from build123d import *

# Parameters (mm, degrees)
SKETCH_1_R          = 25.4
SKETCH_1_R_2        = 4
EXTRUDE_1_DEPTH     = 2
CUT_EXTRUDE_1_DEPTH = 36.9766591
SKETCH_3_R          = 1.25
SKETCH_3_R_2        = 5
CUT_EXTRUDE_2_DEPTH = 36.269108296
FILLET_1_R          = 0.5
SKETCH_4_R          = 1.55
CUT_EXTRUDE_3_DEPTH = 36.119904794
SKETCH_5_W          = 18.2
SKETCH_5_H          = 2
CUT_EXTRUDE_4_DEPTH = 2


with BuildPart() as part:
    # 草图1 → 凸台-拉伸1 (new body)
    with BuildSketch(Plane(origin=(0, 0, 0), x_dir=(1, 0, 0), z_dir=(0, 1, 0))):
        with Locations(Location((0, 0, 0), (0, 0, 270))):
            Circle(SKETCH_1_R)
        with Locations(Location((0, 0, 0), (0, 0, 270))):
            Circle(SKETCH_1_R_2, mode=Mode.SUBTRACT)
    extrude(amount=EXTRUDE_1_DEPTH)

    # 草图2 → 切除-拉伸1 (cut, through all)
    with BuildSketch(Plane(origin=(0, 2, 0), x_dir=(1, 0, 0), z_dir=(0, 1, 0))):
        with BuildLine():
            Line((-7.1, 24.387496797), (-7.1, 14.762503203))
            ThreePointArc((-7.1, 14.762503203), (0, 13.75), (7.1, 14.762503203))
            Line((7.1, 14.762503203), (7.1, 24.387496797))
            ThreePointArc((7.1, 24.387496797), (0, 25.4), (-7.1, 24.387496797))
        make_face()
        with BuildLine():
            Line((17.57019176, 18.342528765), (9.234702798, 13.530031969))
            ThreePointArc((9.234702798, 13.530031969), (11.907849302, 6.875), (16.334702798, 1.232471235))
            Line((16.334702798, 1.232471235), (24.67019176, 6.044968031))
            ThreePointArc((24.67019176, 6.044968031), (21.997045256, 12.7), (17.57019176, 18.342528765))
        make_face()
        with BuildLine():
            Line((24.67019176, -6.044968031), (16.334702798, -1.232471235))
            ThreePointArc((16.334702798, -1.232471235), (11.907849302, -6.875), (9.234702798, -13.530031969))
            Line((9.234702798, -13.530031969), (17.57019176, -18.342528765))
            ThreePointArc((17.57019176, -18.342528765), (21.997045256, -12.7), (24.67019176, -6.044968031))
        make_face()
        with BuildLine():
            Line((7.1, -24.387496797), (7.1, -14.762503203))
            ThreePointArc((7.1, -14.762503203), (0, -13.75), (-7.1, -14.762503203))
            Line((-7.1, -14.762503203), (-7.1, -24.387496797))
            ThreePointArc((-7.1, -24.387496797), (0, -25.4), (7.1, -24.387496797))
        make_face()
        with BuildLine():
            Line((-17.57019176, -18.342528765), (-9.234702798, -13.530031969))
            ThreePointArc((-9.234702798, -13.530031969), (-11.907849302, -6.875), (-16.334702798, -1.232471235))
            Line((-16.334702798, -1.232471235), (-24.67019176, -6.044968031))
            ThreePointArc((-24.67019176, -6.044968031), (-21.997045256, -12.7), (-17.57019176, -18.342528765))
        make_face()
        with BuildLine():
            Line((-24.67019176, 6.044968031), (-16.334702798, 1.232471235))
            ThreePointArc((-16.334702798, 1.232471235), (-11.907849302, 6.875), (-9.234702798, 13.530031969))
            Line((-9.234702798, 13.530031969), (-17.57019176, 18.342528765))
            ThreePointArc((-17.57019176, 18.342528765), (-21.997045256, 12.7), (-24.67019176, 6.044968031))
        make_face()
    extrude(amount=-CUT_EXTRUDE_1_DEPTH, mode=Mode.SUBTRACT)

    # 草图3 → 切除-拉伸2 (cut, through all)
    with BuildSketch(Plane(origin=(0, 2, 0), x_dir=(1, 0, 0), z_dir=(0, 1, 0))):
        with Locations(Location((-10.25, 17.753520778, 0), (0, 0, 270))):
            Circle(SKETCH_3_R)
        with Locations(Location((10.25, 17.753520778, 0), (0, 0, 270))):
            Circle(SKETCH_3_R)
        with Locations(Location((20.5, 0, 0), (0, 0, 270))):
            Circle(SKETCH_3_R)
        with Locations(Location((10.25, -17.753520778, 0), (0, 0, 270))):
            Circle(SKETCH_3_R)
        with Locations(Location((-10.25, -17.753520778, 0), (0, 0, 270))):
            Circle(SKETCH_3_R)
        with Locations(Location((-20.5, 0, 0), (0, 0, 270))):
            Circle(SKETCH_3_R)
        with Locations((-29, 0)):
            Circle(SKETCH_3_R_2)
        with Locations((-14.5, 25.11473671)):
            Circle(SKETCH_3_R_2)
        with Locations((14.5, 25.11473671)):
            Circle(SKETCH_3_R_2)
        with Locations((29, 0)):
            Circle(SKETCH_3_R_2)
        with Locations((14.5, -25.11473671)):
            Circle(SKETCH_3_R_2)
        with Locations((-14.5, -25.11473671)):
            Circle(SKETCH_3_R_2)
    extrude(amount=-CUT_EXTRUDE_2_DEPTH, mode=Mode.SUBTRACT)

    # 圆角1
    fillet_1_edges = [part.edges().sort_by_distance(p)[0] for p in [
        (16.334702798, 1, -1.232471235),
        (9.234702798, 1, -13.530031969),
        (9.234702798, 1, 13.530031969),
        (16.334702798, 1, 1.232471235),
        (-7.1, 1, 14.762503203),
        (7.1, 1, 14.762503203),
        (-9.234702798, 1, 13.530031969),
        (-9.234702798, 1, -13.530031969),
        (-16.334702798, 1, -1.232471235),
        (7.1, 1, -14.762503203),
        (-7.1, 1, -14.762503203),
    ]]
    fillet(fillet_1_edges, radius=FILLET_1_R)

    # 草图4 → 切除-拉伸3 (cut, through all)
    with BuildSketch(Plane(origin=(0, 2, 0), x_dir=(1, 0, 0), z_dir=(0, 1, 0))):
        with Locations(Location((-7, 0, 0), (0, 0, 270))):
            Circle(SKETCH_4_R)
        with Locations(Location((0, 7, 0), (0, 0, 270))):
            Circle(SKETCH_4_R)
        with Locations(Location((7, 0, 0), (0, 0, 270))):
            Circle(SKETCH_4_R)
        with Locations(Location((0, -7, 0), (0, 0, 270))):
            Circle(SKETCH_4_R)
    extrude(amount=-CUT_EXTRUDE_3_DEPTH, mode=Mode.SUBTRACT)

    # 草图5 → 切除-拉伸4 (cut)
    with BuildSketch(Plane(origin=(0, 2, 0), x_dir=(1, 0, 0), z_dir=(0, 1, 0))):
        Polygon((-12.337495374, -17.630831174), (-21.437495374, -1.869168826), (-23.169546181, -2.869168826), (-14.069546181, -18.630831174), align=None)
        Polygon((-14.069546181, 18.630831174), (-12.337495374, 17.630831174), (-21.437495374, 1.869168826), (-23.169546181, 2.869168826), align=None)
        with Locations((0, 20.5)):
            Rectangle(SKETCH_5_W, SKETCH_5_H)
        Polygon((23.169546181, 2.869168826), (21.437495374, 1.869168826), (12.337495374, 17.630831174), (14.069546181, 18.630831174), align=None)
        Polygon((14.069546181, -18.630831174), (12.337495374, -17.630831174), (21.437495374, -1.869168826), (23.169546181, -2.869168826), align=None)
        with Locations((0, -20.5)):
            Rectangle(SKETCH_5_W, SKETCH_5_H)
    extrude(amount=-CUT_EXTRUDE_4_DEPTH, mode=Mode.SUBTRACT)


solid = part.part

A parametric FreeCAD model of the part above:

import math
import FreeCAD as App
import Part
import Sketcher
Q = App.Units.Quantity


def edges_at(feature, points):
    """Names of the edges that pass closest to the given points."""
    edges = feature.Shape.Edges
    near = lambda p: min(range(len(edges)), key=lambda i: edges[i].distToShape(Part.Vertex(*p))[0])
    return sorted({f"Edge{near(p) + 1}" for p in points})


def add_polygon(sketch, points):
    """Adds a closed chain of lines whose ends are joined by coincident constraints."""
    first, n = sketch.GeometryCount, len(points)
    for a, b in zip(points, points[1:] + points[:1]):
        sketch.addGeometry(Part.LineSegment(App.Vector(*a, 0), App.Vector(*b, 0)), False)
    for i in range(n):
        sketch.addConstraint(Sketcher.Constraint("Coincident", first + i, 2, first + (i + 1) % n, 1))

doc = App.newDocument("Part")
body = doc.addObject("PartDesign::Body", "Body")

# Sketch on XZ plane
sketch1 = body.newObject("Sketcher::SketchObject", "Sketch")
sketch1.AttachmentSupport = (doc.getObject("XZ_Plane"), [""])
sketch1.MapMode = "FlatFace"
sketch1.addGeometry([
    Part.Circle(App.Vector(0, 0, 0), App.Vector(0, 0, 1), 25.4),
    Part.Circle(App.Vector(0, 0, 0), App.Vector(0, 0, 1), 4),
], False)
sketch1.addConstraint([
    Sketcher.Constraint("Coincident", 0, 3, -1, 1),
    Sketcher.Constraint("Coincident", 1, 3, -1, 1),
    Sketcher.Constraint("Diameter", 1, Q("8 mm")),
    Sketcher.Constraint("Diameter", 0, Q("50.8 mm")),
])
pad1 = body.newObject("PartDesign::Pad", "Pad")
pad1.Profile = sketch1
pad1.Length = 2
pad1.Reversed = True

# Sketch on XZ plane
sketch2 = body.newObject("Sketcher::SketchObject", "Sketch001")
sketch2.AttachmentSupport = (doc.getObject("XZ_Plane"), [""])
sketch2.MapMode = "FlatFace"
sketch2.AttachmentOffset = App.Placement(App.Vector(0, 0, -2), App.Rotation())
sketch2.addGeometry([
    Part.LineSegment(App.Vector(-7.1, -24.387497, 0), App.Vector(-7.1, -14.762503, 0)),  # 0
    Part.ArcOfCircle(Part.Circle(App.Vector(0, -39.15, 0), App.Vector(0, 0, 1), 25.4), math.radians(73.76799), math.radians(106.23201)),  # 1
    Part.LineSegment(App.Vector(7.1, -14.762503, 0), App.Vector(7.1, -24.387497, 0)),  # 2
    Part.ArcOfCircle(Part.Circle(App.Vector(0, 0, 0), App.Vector(0, 0, 1), 25.4), math.radians(-106.23201), math.radians(-73.76799)),  # 3
    Part.LineSegment(App.Vector(17.570192, -18.342529, 0), App.Vector(9.234703, -13.530032, 0)),  # 4
    Part.ArcOfCircle(Part.Circle(App.Vector(33.904895, -19.575, 0), App.Vector(0, 0, 1), 25.4), math.radians(133.76799), math.radians(166.23201)),  # 5
    Part.LineSegment(App.Vector(16.334703, -1.232471, 0), App.Vector(24.670192, -6.044968, 0)),  # 6
    Part.ArcOfCircle(Part.Circle(App.Vector(0, 0, 0), App.Vector(0, 0, 1), 25.4), math.radians(-46.23201), math.radians(-13.76799)),  # 7
    Part.LineSegment(App.Vector(24.670192, 6.044968, 0), App.Vector(16.334703, 1.232471, 0)),  # 8
    Part.ArcOfCircle(Part.Circle(App.Vector(33.904895, 19.575, 0), App.Vector(0, 0, 1), 25.4), math.radians(-166.23201), math.radians(-133.76799)),  # 9
    Part.LineSegment(App.Vector(9.234703, 13.530032, 0), App.Vector(17.570192, 18.342529, 0)),  # 10
    Part.ArcOfCircle(Part.Circle(App.Vector(0, 0, 0), App.Vector(0, 0, 1), 25.4), math.radians(13.76799), math.radians(46.23201)),  # 11
    Part.LineSegment(App.Vector(7.1, 24.387497, 0), App.Vector(7.1, 14.762503, 0)),  # 12
    Part.ArcOfCircle(Part.Circle(App.Vector(0, 39.15, 0), App.Vector(0, 0, 1), 25.4), math.radians(-106.23201), math.radians(-73.76799)),  # 13
    Part.LineSegment(App.Vector(-7.1, 14.762503, 0), App.Vector(-7.1, 24.387497, 0)),  # 14
    Part.ArcOfCircle(Part.Circle(App.Vector(0, 0, 0), App.Vector(0, 0, 1), 25.4), math.radians(73.76799), math.radians(106.23201)),  # 15
    Part.LineSegment(App.Vector(-17.570192, 18.342529, 0), App.Vector(-9.234703, 13.530032, 0)),  # 16
    Part.ArcOfCircle(Part.Circle(App.Vector(-33.904895, 19.575, 0), App.Vector(0, 0, 1), 25.4), math.radians(-46.23201), math.radians(-13.76799)),  # 17
    Part.LineSegment(App.Vector(-16.334703, 1.232471, 0), App.Vector(-24.670192, 6.044968, 0)),  # 18
    Part.ArcOfCircle(Part.Circle(App.Vector(0, 0, 0), App.Vector(0, 0, 1), 25.4), math.radians(133.76799), math.radians(166.23201)),  # 19
    Part.LineSegment(App.Vector(-24.670192, -6.044968, 0), App.Vector(-16.334703, -1.232471, 0)),  # 20
    Part.ArcOfCircle(Part.Circle(App.Vector(-33.904895, -19.575, 0), App.Vector(0, 0, 1), 25.4), math.radians(13.76799), math.radians(46.23201)),  # 21
    Part.LineSegment(App.Vector(-9.234703, -13.530032, 0), App.Vector(-17.570192, -18.342529, 0)),  # 22
    Part.ArcOfCircle(Part.Circle(App.Vector(0, 0, 0), App.Vector(0, 0, 1), 25.4), math.radians(-166.23201), math.radians(-133.76799)),  # 23
], False)
sketch2.addConstraint([
    Sketcher.Constraint("Coincident", 0, 2, 1, 2),
    Sketcher.Constraint("Coincident", 1, 1, 2, 1),
    Sketcher.Constraint("Coincident", 2, 2, 3, 2),
    Sketcher.Constraint("Coincident", 3, 1, 0, 1),
    Sketcher.Constraint("Coincident", 4, 2, 5, 2),
    Sketcher.Constraint("Coincident", 5, 1, 6, 1),
    Sketcher.Constraint("Coincident", 6, 2, 7, 2),
    Sketcher.Constraint("Coincident", 7, 1, 4, 1),
    Sketcher.Constraint("Coincident", 8, 2, 9, 2),
    Sketcher.Constraint("Coincident", 9, 1, 10, 1),
    Sketcher.Constraint("Coincident", 10, 2, 11, 2),
    Sketcher.Constraint("Coincident", 11, 1, 8, 1),
    Sketcher.Constraint("Coincident", 12, 2, 13, 2),
    Sketcher.Constraint("Coincident", 13, 1, 14, 1),
    Sketcher.Constraint("Coincident", 14, 2, 15, 2),
    Sketcher.Constraint("Coincident", 15, 1, 12, 1),
    Sketcher.Constraint("Coincident", 16, 2, 17, 2),
    Sketcher.Constraint("Coincident", 17, 1, 18, 1),
    Sketcher.Constraint("Coincident", 18, 2, 19, 2),
    Sketcher.Constraint("Coincident", 19, 1, 16, 1),
    Sketcher.Constraint("Coincident", 20, 2, 21, 2),
    Sketcher.Constraint("Coincident", 21, 1, 22, 1),
    Sketcher.Constraint("Coincident", 22, 2, 23, 2),
    Sketcher.Constraint("Coincident", 23, 1, 20, 1),
    Sketcher.Constraint("Vertical", 0),
    Sketcher.Constraint("Vertical", 2),
    Sketcher.Constraint("Vertical", 12),
    Sketcher.Constraint("Vertical", 14),
    Sketcher.Constraint("Coincident", 3, 3, -1, 1),
    Sketcher.Constraint("Coincident", 7, 3, -1, 1),
    Sketcher.Constraint("Coincident", 11, 3, -1, 1),
    Sketcher.Constraint("Coincident", 15, 3, -1, 1),
    Sketcher.Constraint("Coincident", 19, 3, -1, 1),
    Sketcher.Constraint("Coincident", 23, 3, -1, 1),
    Sketcher.Constraint("Equal", 1, 3),
    Sketcher.Constraint("Equal", 3, 5),
    Sketcher.Constraint("Equal", 5, 7),
    Sketcher.Constraint("Equal", 7, 9),
    Sketcher.Constraint("Equal", 9, 11),
    Sketcher.Constraint("Equal", 11, 13),
    Sketcher.Constraint("Equal", 13, 15),
    Sketcher.Constraint("Equal", 15, 17),
    Sketcher.Constraint("Equal", 17, 19),
    Sketcher.Constraint("Equal", 19, 21),
    Sketcher.Constraint("Equal", 21, 23),
    Sketcher.Constraint("Symmetric", 1, 3, 13, 3, -1, 1),
    Sketcher.Constraint("Symmetric", 5, 3, 17, 3, -1, 1),
    Sketcher.Constraint("Symmetric", 9, 3, 21, 3, -1, 1),
    Sketcher.Constraint("Symmetric", 9, 3, 17, 3, -2),
    Sketcher.Constraint("Symmetric", 0, 2, 1, 1, -2),
    Sketcher.Constraint("Parallel", 4, 6),
    Sketcher.Constraint("Parallel", 8, 10),
    Sketcher.Constraint("Parallel", 6, 16),
    Sketcher.Constraint("Parallel", 16, 18),
    Sketcher.Constraint("Parallel", 10, 20),
    Sketcher.Constraint("Parallel", 20, 22),
    Sketcher.Constraint("Horizontal", 12, 2, 13, 1),
    Sketcher.Constraint("Horizontal", 9, 1, 16, 2),
    Sketcher.Constraint("Horizontal", 8, 2, 17, 1),
    Sketcher.Constraint("Horizontal", 11, 1, 18, 2),
    Sketcher.Constraint("Horizontal", 5, 1, 20, 2),
    Sketcher.Constraint("Horizontal", 4, 2, 21, 1),
    Sketcher.Constraint("Vertical", 5, 1, 8, 2),
    Sketcher.Constraint("Vertical", 4, 2, 9, 1),
    Sketcher.Constraint("Vertical", 2, 2, 12, 2),
    Sketcher.Constraint("Equal", 4, 6),
    Sketcher.Constraint("Radius", 1, Q("25.4 mm")),
    Sketcher.Constraint("Angle", 4, Q("150 deg")),
    Sketcher.Constraint("DistanceX", 0, 2, -1, 1, Q("7.1 mm")),
    Sketcher.Constraint("DistanceX", 4, 2, 5, 1, Q("7.1 mm")),
    Sketcher.Constraint("DistanceY", 1, 3, -1, 1, Q("39.15 mm")),
    Sketcher.Constraint("DistanceY", 5, 3, 9, 3, Q("39.15 mm")),
    Sketcher.Constraint("DistanceY", 4, 2, -1, 1, Q("13.530032 mm")),
])
pocket1 = body.newObject("PartDesign::Pocket", "Pocket")
pocket1.Profile = sketch2
pocket1.Type = "ThroughAll"
pocket1.Reversed = True

# Sketch on XZ plane
sketch3 = body.newObject("Sketcher::SketchObject", "Sketch002")
sketch3.AttachmentSupport = (doc.getObject("XZ_Plane"), [""])
sketch3.MapMode = "FlatFace"
sketch3.AttachmentOffset = App.Placement(App.Vector(0, 0, -2), App.Rotation())
sketch3.addGeometry([
    Part.Circle(App.Vector(-10.25, -17.753521, 0), App.Vector(0, 0, 1), 1.25),  # 0
    Part.Circle(App.Vector(10.25, -17.753521, 0), App.Vector(0, 0, 1), 1.25),  # 1
    Part.Circle(App.Vector(20.5, 0, 0), App.Vector(0, 0, 1), 1.25),  # 2
    Part.Circle(App.Vector(10.25, 17.753521, 0), App.Vector(0, 0, 1), 1.25),  # 3
    Part.Circle(App.Vector(-10.25, 17.753521, 0), App.Vector(0, 0, 1), 1.25),  # 4
    Part.Circle(App.Vector(-20.5, 0, 0), App.Vector(0, 0, 1), 1.25),  # 5
    Part.Circle(App.Vector(-29, 0, 0), App.Vector(0, 0, 1), 5),  # 6
    Part.Circle(App.Vector(-14.5, -25.114737, 0), App.Vector(0, 0, 1), 5),  # 7
    Part.Circle(App.Vector(14.5, -25.114737, 0), App.Vector(0, 0, 1), 5),  # 8
    Part.Circle(App.Vector(29, 0, 0), App.Vector(0, 0, 1), 5),  # 9
    Part.Circle(App.Vector(14.5, 25.114737, 0), App.Vector(0, 0, 1), 5),  # 10
    Part.Circle(App.Vector(-14.5, 25.114737, 0), App.Vector(0, 0, 1), 5),  # 11
], False)
sketch3.addConstraint([
    Sketcher.Constraint("Equal", 0, 1),
    Sketcher.Constraint("Equal", 1, 2),
    Sketcher.Constraint("Equal", 2, 3),
    Sketcher.Constraint("Equal", 3, 4),
    Sketcher.Constraint("Equal", 4, 5),
    Sketcher.Constraint("Equal", 6, 7),
    Sketcher.Constraint("Equal", 7, 8),
    Sketcher.Constraint("Equal", 8, 9),
    Sketcher.Constraint("Equal", 9, 10),
    Sketcher.Constraint("Equal", 10, 11),
    Sketcher.Constraint("Symmetric", 0, 3, 3, 3, -1, 1),
    Sketcher.Constraint("Symmetric", 1, 3, 4, 3, -1, 1),
    Sketcher.Constraint("Symmetric", 2, 3, 5, 3, -1, 1),
    Sketcher.Constraint("Symmetric", 6, 3, 9, 3, -1, 1),
    Sketcher.Constraint("Symmetric", 7, 3, 10, 3, -1, 1),
    Sketcher.Constraint("Symmetric", 8, 3, 11, 3, -1, 1),
    Sketcher.Constraint("Symmetric", 0, 3, 1, 3, -2),
    Sketcher.Constraint("Symmetric", 7, 3, 8, 3, -2),
    Sketcher.Constraint("PointOnObject", 2, 3, -1),
    Sketcher.Constraint("PointOnObject", 6, 3, -1),
    Sketcher.Constraint("Diameter", 6, Q("10 mm")),
    Sketcher.Constraint("Diameter", 0, Q("2.5 mm")),
    Sketcher.Constraint("DistanceX", 6, 3, -1, 1, Q("29 mm")),
    Sketcher.Constraint("DistanceX", 5, 3, 2, 3, Q("41 mm")),
    Sketcher.Constraint("DistanceX", 5, 3, 7, 3, Q("6 mm")),
    Sketcher.Constraint("DistanceX", 0, 3, 1, 3, Q("20.5 mm")),
    Sketcher.Constraint("DistanceY", 0, 3, -1, 1, Q("17.753521 mm")),
    Sketcher.Constraint("DistanceY", 7, 3, -1, 1, Q("25.114737 mm")),
])
pocket2 = body.newObject("PartDesign::Pocket", "Pocket001")
pocket2.Profile = sketch3
pocket2.Type = "ThroughAll"
pocket2.Reversed = True
doc.recompute()

fillet = body.newObject("PartDesign::Fillet", "Fillet")
fillet.Base = (pocket2, edges_at(pocket2, [
    (16.335, 1, -1.232),
    (9.235, 1, -13.53),
    (9.235, 1, 13.53),
    (16.335, 1, 1.232),
    (-7.1, 1, 14.763),
    (7.1, 1, 14.763),
    (-9.235, 1, 13.53),
    (-9.235, 1, -13.53),
    (-16.335, 1, -1.232),
    (7.1, 1, -14.763),
    (-7.1, 1, -14.763),
]))
fillet.Radius = 0.5

# Sketch on XZ plane
sketch4 = body.newObject("Sketcher::SketchObject", "Sketch003")
sketch4.AttachmentSupport = (doc.getObject("XZ_Plane"), [""])
sketch4.MapMode = "FlatFace"
sketch4.AttachmentOffset = App.Placement(App.Vector(0, 0, -2), App.Rotation())
sketch4.addGeometry([
    Part.Circle(App.Vector(-7, 0, 0), App.Vector(0, 0, 1), 1.55),
    Part.Circle(App.Vector(0, -7, 0), App.Vector(0, 0, 1), 1.55),
    Part.Circle(App.Vector(7, 0, 0), App.Vector(0, 0, 1), 1.55),
    Part.Circle(App.Vector(0, 7, 0), App.Vector(0, 0, 1), 1.55),
], False)
sketch4.addConstraint([
    Sketcher.Constraint("Equal", 0, 1),
    Sketcher.Constraint("Equal", 1, 2),
    Sketcher.Constraint("Equal", 2, 3),
    Sketcher.Constraint("Symmetric", 0, 3, 2, 3, -1, 1),
    Sketcher.Constraint("Symmetric", 1, 3, 3, 3, -1, 1),
    Sketcher.Constraint("PointOnObject", 0, 3, -1),
    Sketcher.Constraint("PointOnObject", 1, 3, -2),
    Sketcher.Constraint("Diameter", 0, Q("3.1 mm")),
    Sketcher.Constraint("DistanceX", 0, 3, -1, 1, Q("7 mm")),
    Sketcher.Constraint("DistanceY", 1, 3, -1, 1, Q("7 mm")),
])
pocket3 = body.newObject("PartDesign::Pocket", "Pocket002")
pocket3.Profile = sketch4
pocket3.Type = "ThroughAll"
pocket3.Reversed = True

# Sketch on XZ plane
sketch5 = body.newObject("Sketcher::SketchObject", "Sketch004")
sketch5.AttachmentSupport = (doc.getObject("XZ_Plane"), [""])
sketch5.MapMode = "FlatFace"
sketch5.AttachmentOffset = App.Placement(App.Vector(0, 0, -2), App.Rotation())
add_polygon(sketch5, [(-12.337495, 17.630831), (-21.437495, 1.869169), (-23.169546, 2.869169), (-14.069546, 18.630831)])  # lines 0-3
add_polygon(sketch5, [(-12.337495, -17.630831), (-14.069546, -18.630831), (-23.169546, -2.869169), (-21.437495, -1.869169)])  # lines 4-7
add_polygon(sketch5, [(-9.1, -21.5), (-9.1, -19.5), (9.1, -19.5), (9.1, -21.5)])  # lines 8-11
add_polygon(sketch5, [(21.437495, -1.869169), (23.169546, -2.869169), (14.069546, -18.630831), (12.337495, -17.630831)])  # lines 12-15
add_polygon(sketch5, [(12.337495, 17.630831), (14.069546, 18.630831), (23.169546, 2.869169), (21.437495, 1.869169)])  # lines 16-19
add_polygon(sketch5, [(-9.1, 19.5), (-9.1, 21.5), (9.1, 21.5), (9.1, 19.5)])  # lines 20-23
sketch5.addConstraint([
    Sketcher.Constraint("Vertical", 8),
    Sketcher.Constraint("Horizontal", 9),
    Sketcher.Constraint("Vertical", 10),
    Sketcher.Constraint("Horizontal", 11),
    Sketcher.Constraint("Vertical", 20),
    Sketcher.Constraint("Horizontal", 21),
    Sketcher.Constraint("Vertical", 22),
    Sketcher.Constraint("Horizontal", 23),
    Sketcher.Constraint("Symmetric", 1, 2, 12, 2, -1, 1),
    Sketcher.Constraint("Symmetric", 2, 2, 13, 2, -1, 1),
    Sketcher.Constraint("Symmetric", 3, 2, 14, 2, -1, 1),
    Sketcher.Constraint("Symmetric", 0, 2, 15, 2, -1, 1),
    Sketcher.Constraint("Symmetric", 4, 2, 16, 2, -1, 1),
    Sketcher.Constraint("Symmetric", 5, 2, 17, 2, -1, 1),
    Sketcher.Constraint("Symmetric", 6, 2, 18, 2, -1, 1),
    Sketcher.Constraint("Symmetric", 7, 2, 19, 2, -1, 1),
    Sketcher.Constraint("Symmetric", 10, 2, 20, 2, -1, 1),
    Sketcher.Constraint("Symmetric", 8, 2, 22, 2, -1, 1),
    Sketcher.Constraint("Symmetric", 5, 2, 12, 2, -2),
    Sketcher.Constraint("Symmetric", 4, 2, 13, 2, -2),
    Sketcher.Constraint("Symmetric", 7, 2, 14, 2, -2),
    Sketcher.Constraint("Symmetric", 6, 2, 15, 2, -2),
    Sketcher.Constraint("Perpendicular", 0, 1),
    Sketcher.Constraint("Perpendicular", 1, 2),
    Sketcher.Constraint("Perpendicular", 2, 3),
    Sketcher.Constraint("Vertical", 11, 2, 20, 2),
    Sketcher.Constraint("DistanceY", 8, 1, 8, 2, Q("2 mm")),
    Sketcher.Constraint("Angle", 0, Q("-120 deg")),
    Sketcher.Constraint("Distance", 1, Q("2 mm")),
    Sketcher.Constraint("DistanceX", 9, 1, 9, 2, Q("18.2 mm")),
    Sketcher.Constraint("Distance", 0, Q("18.2 mm")),
    Sketcher.Constraint("DistanceY", 8, 2, -1, 1, Q("19.5 mm")),
    Sketcher.Constraint("DistanceY", 4, 2, 0, 2, Q("20.5 mm")),
    Sketcher.Constraint("DistanceX", 7, 2, 12, 2, Q("35.507042 mm")),
])
pocket4 = body.newObject("PartDesign::Pocket", "Pocket003")
pocket4.Profile = sketch5
pocket4.Length = 2
pocket4.Reversed = True

doc.recompute()
